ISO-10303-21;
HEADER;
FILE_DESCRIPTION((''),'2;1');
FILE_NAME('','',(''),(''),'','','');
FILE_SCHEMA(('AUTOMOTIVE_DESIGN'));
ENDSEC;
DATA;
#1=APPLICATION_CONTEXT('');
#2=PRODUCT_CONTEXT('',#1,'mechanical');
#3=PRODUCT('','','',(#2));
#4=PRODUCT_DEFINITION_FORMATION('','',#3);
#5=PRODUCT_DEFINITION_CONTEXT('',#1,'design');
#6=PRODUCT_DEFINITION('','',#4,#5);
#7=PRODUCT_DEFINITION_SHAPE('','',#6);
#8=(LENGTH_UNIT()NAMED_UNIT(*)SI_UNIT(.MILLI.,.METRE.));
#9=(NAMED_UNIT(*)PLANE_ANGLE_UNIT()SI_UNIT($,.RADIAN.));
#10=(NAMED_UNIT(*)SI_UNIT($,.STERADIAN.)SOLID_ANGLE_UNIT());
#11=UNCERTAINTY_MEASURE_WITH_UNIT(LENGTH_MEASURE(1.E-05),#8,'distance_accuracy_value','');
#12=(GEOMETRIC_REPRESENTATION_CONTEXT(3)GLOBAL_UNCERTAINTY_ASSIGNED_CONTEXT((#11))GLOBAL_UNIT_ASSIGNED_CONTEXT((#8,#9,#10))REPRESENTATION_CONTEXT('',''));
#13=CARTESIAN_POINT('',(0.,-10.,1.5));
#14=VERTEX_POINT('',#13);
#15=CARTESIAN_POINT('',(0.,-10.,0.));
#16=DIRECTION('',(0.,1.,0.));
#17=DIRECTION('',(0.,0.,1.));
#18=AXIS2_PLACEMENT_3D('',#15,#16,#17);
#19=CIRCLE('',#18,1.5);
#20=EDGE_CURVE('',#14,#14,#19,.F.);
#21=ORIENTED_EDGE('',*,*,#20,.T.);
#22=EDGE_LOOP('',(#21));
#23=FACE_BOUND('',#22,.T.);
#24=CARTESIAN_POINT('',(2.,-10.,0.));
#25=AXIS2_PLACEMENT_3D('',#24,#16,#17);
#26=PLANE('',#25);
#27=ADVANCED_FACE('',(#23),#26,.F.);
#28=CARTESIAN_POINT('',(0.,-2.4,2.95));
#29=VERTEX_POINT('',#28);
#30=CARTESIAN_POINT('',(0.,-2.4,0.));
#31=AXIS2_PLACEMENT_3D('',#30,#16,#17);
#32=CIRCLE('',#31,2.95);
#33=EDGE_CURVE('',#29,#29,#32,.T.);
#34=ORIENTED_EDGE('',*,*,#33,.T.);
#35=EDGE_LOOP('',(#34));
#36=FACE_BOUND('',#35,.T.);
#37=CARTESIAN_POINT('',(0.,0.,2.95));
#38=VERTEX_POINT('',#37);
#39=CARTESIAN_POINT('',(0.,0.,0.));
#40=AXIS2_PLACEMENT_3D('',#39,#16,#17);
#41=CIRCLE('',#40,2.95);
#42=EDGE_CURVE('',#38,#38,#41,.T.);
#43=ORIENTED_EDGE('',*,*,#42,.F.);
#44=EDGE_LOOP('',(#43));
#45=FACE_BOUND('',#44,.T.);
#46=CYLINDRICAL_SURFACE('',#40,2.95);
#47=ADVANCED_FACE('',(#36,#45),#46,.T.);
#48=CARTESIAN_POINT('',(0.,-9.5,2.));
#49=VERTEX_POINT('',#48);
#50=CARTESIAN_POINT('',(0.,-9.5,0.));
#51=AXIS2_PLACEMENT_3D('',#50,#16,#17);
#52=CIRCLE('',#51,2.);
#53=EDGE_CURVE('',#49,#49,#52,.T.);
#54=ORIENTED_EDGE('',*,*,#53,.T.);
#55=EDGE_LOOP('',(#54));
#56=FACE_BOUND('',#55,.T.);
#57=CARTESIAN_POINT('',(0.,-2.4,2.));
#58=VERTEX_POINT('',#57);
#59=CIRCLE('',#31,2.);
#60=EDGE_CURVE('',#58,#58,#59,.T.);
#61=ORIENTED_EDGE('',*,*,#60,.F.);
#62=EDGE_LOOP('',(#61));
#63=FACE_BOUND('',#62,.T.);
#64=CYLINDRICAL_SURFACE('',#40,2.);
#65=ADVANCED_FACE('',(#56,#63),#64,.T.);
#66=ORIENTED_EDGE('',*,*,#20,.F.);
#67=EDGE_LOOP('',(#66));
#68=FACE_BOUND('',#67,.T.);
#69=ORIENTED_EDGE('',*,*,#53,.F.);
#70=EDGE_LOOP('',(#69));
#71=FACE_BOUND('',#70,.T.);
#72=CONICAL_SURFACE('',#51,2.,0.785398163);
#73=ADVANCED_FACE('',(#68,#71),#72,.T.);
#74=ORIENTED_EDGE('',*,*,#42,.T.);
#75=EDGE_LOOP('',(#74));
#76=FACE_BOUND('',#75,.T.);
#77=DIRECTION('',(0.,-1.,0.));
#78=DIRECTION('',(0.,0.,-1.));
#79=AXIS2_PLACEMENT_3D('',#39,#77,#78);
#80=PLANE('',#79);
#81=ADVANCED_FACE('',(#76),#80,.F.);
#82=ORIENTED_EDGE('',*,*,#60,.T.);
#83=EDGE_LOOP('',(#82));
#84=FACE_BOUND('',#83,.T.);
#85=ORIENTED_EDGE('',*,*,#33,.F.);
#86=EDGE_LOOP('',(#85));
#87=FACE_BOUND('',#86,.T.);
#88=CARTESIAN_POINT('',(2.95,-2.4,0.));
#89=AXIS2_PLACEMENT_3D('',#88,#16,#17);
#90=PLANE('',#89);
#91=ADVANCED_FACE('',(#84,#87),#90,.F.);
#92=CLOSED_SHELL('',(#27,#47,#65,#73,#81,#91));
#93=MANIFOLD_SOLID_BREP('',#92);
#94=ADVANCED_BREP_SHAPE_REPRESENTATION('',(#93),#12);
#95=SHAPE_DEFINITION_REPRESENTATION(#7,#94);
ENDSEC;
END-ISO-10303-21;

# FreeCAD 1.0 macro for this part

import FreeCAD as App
import Part
import Sketcher
from FreeCAD import Vector


def edges_at(feature, points):
    """Names of the edges that pass closest to the given points."""
    edges = feature.Shape.Edges
    near = lambda p: min(range(len(edges)), key=lambda i: edges[i].distToShape(Part.Vertex(*p))[0])
    return sorted({f"Edge{near(p) + 1}" for p in points})

doc = App.newDocument("Part")
body = doc.addObject("PartDesign::Body", "Body")

# Sketch on XY plane
sketch1 = body.newObject("Sketcher::SketchObject", "Sketch")
sketch1.AttachmentSupport = (doc.getObject("XY_Plane"), [""])
sketch1.MapMode = "FlatFace"
sketch1.addGeometry([
    Part.LineSegment(Vector(3, 0, 0), Vector(0, 0, 0)),  # 0
    Part.LineSegment(Vector(0, 0, 0), Vector(0, -10, 0)),  # 1
    Part.LineSegment(Vector(0, -10, 0), Vector(2, -10, 0)),  # 2
    Part.LineSegment(Vector(2, -10, 0), Vector(2, -2.4, 0)),  # 3
    Part.LineSegment(Vector(2, -2.4, 0), Vector(3, -2.4, 0)),  # 4
    Part.LineSegment(Vector(3, -2.4, 0), Vector(3, 0, 0)),  # 5
], False)
sketch1.addConstraint([
    Sketcher.Constraint("Coincident", 0, 2, 1, 1),
    Sketcher.Constraint("Coincident", 1, 2, 2, 1),
    Sketcher.Constraint("Coincident", 2, 2, 3, 1),
    Sketcher.Constraint("Coincident", 3, 2, 4, 1),
    Sketcher.Constraint("Coincident", 4, 2, 5, 1),
    Sketcher.Constraint("Coincident", 5, 2, 0, 1),
    Sketcher.Constraint("Horizontal", 0),
    Sketcher.Constraint("Vertical", 1),
    Sketcher.Constraint("Horizontal", 2),
    Sketcher.Constraint("Vertical", 3),
    Sketcher.Constraint("Horizontal", 4),
    Sketcher.Constraint("Vertical", 5),
    Sketcher.Constraint("Coincident", 0, 2, -1, 1),
    Sketcher.Constraint("DistanceX", 2, 1, 2, 2, 2.0),
    Sketcher.Constraint("DistanceY", 1, 2, 1, 1, 10.0),
    Sketcher.Constraint("DistanceY", 3, 1, 3, 2, 7.6),
    Sketcher.Constraint("DistanceX", 0, 2, 0, 1, 2.95),
])
revolution = body.newObject("PartDesign::Revolution", "Revolution")
revolution.Profile = sketch1
revolution.ReferenceAxis = (sketch1, ["V_Axis"])
revolution.Angle = 360
doc.recompute()

chamfer = body.newObject("PartDesign::Chamfer", "Chamfer")
chamfer.Base = (revolution, edges_at(revolution, [(-2, -10, 0)]))
chamfer.Size = 0.5

doc.recompute()
